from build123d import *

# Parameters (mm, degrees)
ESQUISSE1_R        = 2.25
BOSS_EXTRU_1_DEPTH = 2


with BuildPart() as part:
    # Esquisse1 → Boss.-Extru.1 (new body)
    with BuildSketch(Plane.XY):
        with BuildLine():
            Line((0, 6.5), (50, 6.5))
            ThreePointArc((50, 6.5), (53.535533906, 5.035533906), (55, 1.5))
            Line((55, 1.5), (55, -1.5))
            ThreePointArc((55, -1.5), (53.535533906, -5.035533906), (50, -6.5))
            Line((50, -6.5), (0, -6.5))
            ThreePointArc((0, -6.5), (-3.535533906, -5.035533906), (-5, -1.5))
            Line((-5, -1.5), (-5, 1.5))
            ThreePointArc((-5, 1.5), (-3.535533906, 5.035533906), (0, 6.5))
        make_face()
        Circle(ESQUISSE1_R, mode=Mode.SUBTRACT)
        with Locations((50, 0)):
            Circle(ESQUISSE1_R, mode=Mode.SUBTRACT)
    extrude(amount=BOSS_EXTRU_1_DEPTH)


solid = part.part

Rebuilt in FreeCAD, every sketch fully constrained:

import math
import FreeCAD as App
import Part
import Sketcher
from FreeCAD import Vector

doc = App.newDocument("Part")
body = doc.addObject("PartDesign::Body", "Body")

sketch1 = doc.addObject("Sketcher::SketchObject", "Sketch")
body.addObject(sketch1)
sketch1.AttachmentSupport = (doc.XY_Plane, [""])
sketch1.MapMode = "FlatFace"
sketch1.addGeometry(Part.LineSegment(Vector(50, 6.5, 0), Vector(0, 6.5, 0)), False)
sketch1.addGeometry(Part.ArcOfCircle(Part.Circle(Vector(0, 1.5, 0), Vector(0, 0, 1), 5), math.radians(90), math.radians(180)), False)
sketch1.addGeometry(Part.LineSegment(Vector(-5, 1.5, 0), Vector(-5, -1.5, 0)), False)
sketch1.addGeometry(Part.ArcOfCircle(Part.Circle(Vector(0, -1.5, 0), Vector(0, 0, 1), 5), math.radians(180), math.radians(270)), False)
sketch1.addGeometry(Part.LineSegment(Vector(0, -6.5, 0), Vector(50, -6.5, 0)), False)
sketch1.addGeometry(Part.ArcOfCircle(Part.Circle(Vector(50, -1.5, 0), Vector(0, 0, 1), 5), math.radians(-90), math.radians(0)), False)
sketch1.addGeometry(Part.LineSegment(Vector(55, -1.5, 0), Vector(55, 1.5, 0)), False)
sketch1.addGeometry(Part.ArcOfCircle(Part.Circle(Vector(50, 1.5, 0), Vector(0, 0, 1), 5), math.radians(0), math.radians(90)), False)
sketch1.addGeometry(Part.Circle(Vector(50, 0, 0), Vector(0, 0, 1), 2.2), False)
sketch1.addGeometry(Part.Circle(Vector(0, 0, 0), Vector(0, 0, 1), 2.2), False)
sketch1.addConstraint(Sketcher.Constraint("Tangent", 0, 2, 1, 1))
sketch1.addConstraint(Sketcher.Constraint("Tangent", 1, 2, 2, 1))
sketch1.addConstraint(Sketcher.Constraint("Tangent", 2, 2, 3, 1))
sketch1.addConstraint(Sketcher.Constraint("Tangent", 3, 2, 4, 1))
sketch1.addConstraint(Sketcher.Constraint("Tangent", 4, 2, 5, 1))
sketch1.addConstraint(Sketcher.Constraint("Tangent", 5, 2, 6, 1))
sketch1.addConstraint(Sketcher.Constraint("Tangent", 6, 2, 7, 1))
sketch1.addConstraint(Sketcher.Constraint("Tangent", 7, 2, 0, 1))
sketch1.addConstraint(Sketcher.Constraint("Horizontal", 0))
sketch1.addConstraint(Sketcher.Constraint("Vertical", 2))
sketch1.addConstraint(Sketcher.Constraint("Horizontal", 4))
sketch1.addConstraint(Sketcher.Constraint("Vertical", 6))
sketch1.addConstraint(Sketcher.Constraint("Coincident", 9, 3, -1, 1))
sketch1.addConstraint(Sketcher.Constraint("Equal", 1, 3))
sketch1.addConstraint(Sketcher.Constraint("Equal", 3, 5))
sketch1.addConstraint(Sketcher.Constraint("Equal", 5, 7))
sketch1.addConstraint(Sketcher.Constraint("Equal", 8, 9))
sketch1.addConstraint(Sketcher.Constraint("Symmetric", 1, 3, 3, 3, -1, 1))
sketch1.addConstraint(Sketcher.Constraint("PointOnObject", 8, 3, -1))
sketch1.addConstraint(Sketcher.Constraint("Vertical", 7, 3, 8, 3))
sketch1.addConstraint(Sketcher.Constraint("Radius", 1, 5.0))
sketch1.addConstraint(Sketcher.Constraint("Diameter", 8, 4.5))
sketch1.addConstraint(Sketcher.Constraint("DistanceX", 0, 2, 0, 1, 50.0))
sketch1.addConstraint(Sketcher.Constraint("DistanceY", 2, 2, 2, 1, 3.0))
pad1 = doc.addObject("PartDesign::Pad", "Pad")
body.addObject(pad1)
pad1.Profile = sketch1
pad1.Length = 2

doc.recompute()
